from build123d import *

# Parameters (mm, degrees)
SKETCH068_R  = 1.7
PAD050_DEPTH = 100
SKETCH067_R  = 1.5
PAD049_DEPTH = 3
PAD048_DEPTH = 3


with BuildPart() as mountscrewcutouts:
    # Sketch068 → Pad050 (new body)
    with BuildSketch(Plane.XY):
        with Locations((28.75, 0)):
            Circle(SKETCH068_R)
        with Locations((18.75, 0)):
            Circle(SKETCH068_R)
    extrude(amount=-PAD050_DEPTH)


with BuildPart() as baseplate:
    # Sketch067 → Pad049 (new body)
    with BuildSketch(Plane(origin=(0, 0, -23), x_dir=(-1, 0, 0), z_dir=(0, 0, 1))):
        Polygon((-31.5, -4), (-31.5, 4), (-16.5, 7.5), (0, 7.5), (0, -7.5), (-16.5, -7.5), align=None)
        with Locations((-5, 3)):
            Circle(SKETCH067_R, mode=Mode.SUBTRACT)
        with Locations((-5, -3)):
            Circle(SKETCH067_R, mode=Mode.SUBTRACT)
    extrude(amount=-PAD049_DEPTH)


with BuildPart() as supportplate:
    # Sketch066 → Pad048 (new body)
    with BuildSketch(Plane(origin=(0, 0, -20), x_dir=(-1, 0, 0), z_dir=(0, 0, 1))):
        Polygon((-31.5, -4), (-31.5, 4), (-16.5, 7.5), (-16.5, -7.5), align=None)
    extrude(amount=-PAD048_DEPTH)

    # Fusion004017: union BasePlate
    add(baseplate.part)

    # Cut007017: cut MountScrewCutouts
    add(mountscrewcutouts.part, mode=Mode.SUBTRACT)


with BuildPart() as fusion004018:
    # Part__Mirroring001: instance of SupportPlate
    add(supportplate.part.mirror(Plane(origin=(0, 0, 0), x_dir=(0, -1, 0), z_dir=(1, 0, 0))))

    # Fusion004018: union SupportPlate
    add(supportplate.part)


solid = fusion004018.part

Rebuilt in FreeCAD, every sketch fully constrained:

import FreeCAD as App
import Part
import Sketcher

V = App.Vector
Q = App.Units.Quantity


def add_polygon(sketch, points):
    """Adds a closed chain of lines whose ends are joined by coincident constraints."""
    first, n = sketch.GeometryCount, len(points)
    for a, b in zip(points, points[1:] + points[:1]):
        sketch.addGeometry(Part.LineSegment(App.Vector(*a, 0), App.Vector(*b, 0)), False)
    for i in range(n):
        sketch.addConstraint(Sketcher.Constraint("Coincident", first + i, 2, first + (i + 1) % n, 1))

doc = App.newDocument("Part")
body = doc.addObject("PartDesign::Body", "Body")
body.AllowCompound = True

# Sketch on XY plane
sketch1 = doc.addObject("Sketcher::SketchObject", "Sketch")
body.addObject(sketch1)
sketch1.AttachmentSupport = (doc.XY_Plane, [""])
sketch1.MapMode = "FlatFace"
sketch1.addGeometry([
    Part.Circle(V(28.8, 0, 0), V(0, 0, 1), 1.7),
    Part.Circle(V(18.8, 0, 0), V(0, 0, 1), 1.7),
], False)
sketch1.addConstraint([
    Sketcher.Constraint("Equal", 0, 1),
    Sketcher.Constraint("PointOnObject", 0, 3, -1),
    Sketcher.Constraint("PointOnObject", 1, 3, -1),
    Sketcher.Constraint("Diameter", 0, Q("3.4 mm")),
    Sketcher.Constraint("DistanceX", 1, 3, 0, 3, Q("10 mm")),
    Sketcher.Constraint("DistanceX", -1, 1, 0, 3, Q("28.75 mm")),
])
pad1 = doc.addObject("PartDesign::Pad", "Pad")
body.addObject(pad1)
pad1.Profile = sketch1
pad1.Length = 100
pad1.Reversed = True
body2 = doc.addObject("PartDesign::Body", "Body001")

# Sketch on XY plane
sketch2 = doc.addObject("Sketcher::SketchObject", "Sketch001")
body2.addObject(sketch2)
sketch2.AttachmentSupport = (doc.getObject("XY_Plane001"), [""])
sketch2.MapMode = "FlatFace"
sketch2.AttachmentOffset = App.Placement(V(0, 0, -23), App.Rotation())
add_polygon(sketch2, [(31.5, -4), (31.5, 4), (16.5, 7.5), (0, 7.5), (0, -7.5), (16.5, -7.5)])  # lines 0-5
sketch2.addGeometry(Part.Circle(V(5, 3, 0), V(0, 0, 1), 1.5), False)  # 6
sketch2.addGeometry(Part.Circle(V(5, -3, 0), V(0, 0, 1), 1.5), False)  # 7
sketch2.addConstraint([
    Sketcher.Constraint("Vertical", 0),
    Sketcher.Constraint("Horizontal", 2),
    Sketcher.Constraint("Vertical", 3),
    Sketcher.Constraint("Horizontal", 4),
    Sketcher.Constraint("Equal", 6, 7),
    Sketcher.Constraint("Symmetric", 2, 2, 3, 2, -1, 1),
    Sketcher.Constraint("Symmetric", 6, 3, 7, 3, -1),
    Sketcher.Constraint("Vertical", 1, 2, 4, 2),
    Sketcher.Constraint("Equal", 1, 5),
    Sketcher.Constraint("Diameter", 6, Q("3 mm")),
    Sketcher.Constraint("DistanceY", 0, 1, 0, 2, Q("8 mm")),
    Sketcher.Constraint("DistanceY", 3, 2, 3, 1, Q("15 mm")),
    Sketcher.Constraint("DistanceX", 2, 2, 2, 1, Q("16.5 mm")),
    Sketcher.Constraint("DistanceX", -1, 1, 6, 3, Q("5 mm")),
    Sketcher.Constraint("DistanceY", -1, 1, 6, 3, Q("3 mm")),
    Sketcher.Constraint("DistanceX", 1, 2, 0, 2, Q("15 mm")),
])
pad2 = doc.addObject("PartDesign::Pad", "Pad001")
body2.addObject(pad2)
pad2.Profile = sketch2
pad2.Length = 3
pad2.Reversed = True
body3 = doc.addObject("PartDesign::Body", "Body002")

# Sketch on XY plane
sketch3 = doc.addObject("Sketcher::SketchObject", "Sketch002")
body3.addObject(sketch3)
sketch3.AttachmentSupport = (doc.getObject("XY_Plane002"), [""])
sketch3.MapMode = "FlatFace"
sketch3.AttachmentOffset = App.Placement(V(0, 0, -20), App.Rotation())
add_polygon(sketch3, [(32, -4), (32, 4), (16, 8), (16, -8)])  # lines 0-3
sketch3.addConstraint([
    Sketcher.Constraint("Vertical", 0),
    Sketcher.Constraint("Vertical", 2),
    Sketcher.Constraint("Equal", 1, 3),
    Sketcher.Constraint("DistanceY", 0, 1, 0, 2, Q("8 mm")),
    Sketcher.Constraint("DistanceY", 2, 2, 2, 1, Q("15 mm")),
    Sketcher.Constraint("DistanceY", -1, 1, 0, 2, Q("4 mm")),
    Sketcher.Constraint("DistanceX", 1, 2, 0, 2, Q("15 mm")),
    Sketcher.Constraint("DistanceX", -1, 1, 0, 2, Q("31.5 mm")),
])
pad3 = doc.addObject("PartDesign::Pad", "Pad002")
body3.addObject(pad3)
pad3.Profile = sketch3
pad3.Length = 3
pad3.Reversed = True
doc.recompute()

boolean = doc.addObject("PartDesign::Boolean", "Boolean")
body3.addObject(boolean)
boolean.Type = "Fuse"
boolean.addObjects([body2])
doc.recompute()

boolean2 = doc.addObject("PartDesign::Boolean", "Boolean001")
body3.addObject(boolean2)
boolean2.Type = "Cut"
boolean2.addObjects([body])
body4 = doc.addObject("PartDesign::Body", "Body003")
doc.recompute()

mirroring = doc.addObject("Part::Mirroring", "Mirroring")
mirroring.Source = body3
mirroring.Base = V(0, 0, 0)
mirroring.Normal = V(1, 0, 0)
body4.BaseFeature = mirroring
doc.recompute()

boolean3 = doc.addObject("PartDesign::Boolean", "Boolean002")
body4.addObject(boolean3)
boolean3.Type = "Fuse"
boolean3.addObjects([body3])
mirroring.Visibility = False

doc.recompute()
